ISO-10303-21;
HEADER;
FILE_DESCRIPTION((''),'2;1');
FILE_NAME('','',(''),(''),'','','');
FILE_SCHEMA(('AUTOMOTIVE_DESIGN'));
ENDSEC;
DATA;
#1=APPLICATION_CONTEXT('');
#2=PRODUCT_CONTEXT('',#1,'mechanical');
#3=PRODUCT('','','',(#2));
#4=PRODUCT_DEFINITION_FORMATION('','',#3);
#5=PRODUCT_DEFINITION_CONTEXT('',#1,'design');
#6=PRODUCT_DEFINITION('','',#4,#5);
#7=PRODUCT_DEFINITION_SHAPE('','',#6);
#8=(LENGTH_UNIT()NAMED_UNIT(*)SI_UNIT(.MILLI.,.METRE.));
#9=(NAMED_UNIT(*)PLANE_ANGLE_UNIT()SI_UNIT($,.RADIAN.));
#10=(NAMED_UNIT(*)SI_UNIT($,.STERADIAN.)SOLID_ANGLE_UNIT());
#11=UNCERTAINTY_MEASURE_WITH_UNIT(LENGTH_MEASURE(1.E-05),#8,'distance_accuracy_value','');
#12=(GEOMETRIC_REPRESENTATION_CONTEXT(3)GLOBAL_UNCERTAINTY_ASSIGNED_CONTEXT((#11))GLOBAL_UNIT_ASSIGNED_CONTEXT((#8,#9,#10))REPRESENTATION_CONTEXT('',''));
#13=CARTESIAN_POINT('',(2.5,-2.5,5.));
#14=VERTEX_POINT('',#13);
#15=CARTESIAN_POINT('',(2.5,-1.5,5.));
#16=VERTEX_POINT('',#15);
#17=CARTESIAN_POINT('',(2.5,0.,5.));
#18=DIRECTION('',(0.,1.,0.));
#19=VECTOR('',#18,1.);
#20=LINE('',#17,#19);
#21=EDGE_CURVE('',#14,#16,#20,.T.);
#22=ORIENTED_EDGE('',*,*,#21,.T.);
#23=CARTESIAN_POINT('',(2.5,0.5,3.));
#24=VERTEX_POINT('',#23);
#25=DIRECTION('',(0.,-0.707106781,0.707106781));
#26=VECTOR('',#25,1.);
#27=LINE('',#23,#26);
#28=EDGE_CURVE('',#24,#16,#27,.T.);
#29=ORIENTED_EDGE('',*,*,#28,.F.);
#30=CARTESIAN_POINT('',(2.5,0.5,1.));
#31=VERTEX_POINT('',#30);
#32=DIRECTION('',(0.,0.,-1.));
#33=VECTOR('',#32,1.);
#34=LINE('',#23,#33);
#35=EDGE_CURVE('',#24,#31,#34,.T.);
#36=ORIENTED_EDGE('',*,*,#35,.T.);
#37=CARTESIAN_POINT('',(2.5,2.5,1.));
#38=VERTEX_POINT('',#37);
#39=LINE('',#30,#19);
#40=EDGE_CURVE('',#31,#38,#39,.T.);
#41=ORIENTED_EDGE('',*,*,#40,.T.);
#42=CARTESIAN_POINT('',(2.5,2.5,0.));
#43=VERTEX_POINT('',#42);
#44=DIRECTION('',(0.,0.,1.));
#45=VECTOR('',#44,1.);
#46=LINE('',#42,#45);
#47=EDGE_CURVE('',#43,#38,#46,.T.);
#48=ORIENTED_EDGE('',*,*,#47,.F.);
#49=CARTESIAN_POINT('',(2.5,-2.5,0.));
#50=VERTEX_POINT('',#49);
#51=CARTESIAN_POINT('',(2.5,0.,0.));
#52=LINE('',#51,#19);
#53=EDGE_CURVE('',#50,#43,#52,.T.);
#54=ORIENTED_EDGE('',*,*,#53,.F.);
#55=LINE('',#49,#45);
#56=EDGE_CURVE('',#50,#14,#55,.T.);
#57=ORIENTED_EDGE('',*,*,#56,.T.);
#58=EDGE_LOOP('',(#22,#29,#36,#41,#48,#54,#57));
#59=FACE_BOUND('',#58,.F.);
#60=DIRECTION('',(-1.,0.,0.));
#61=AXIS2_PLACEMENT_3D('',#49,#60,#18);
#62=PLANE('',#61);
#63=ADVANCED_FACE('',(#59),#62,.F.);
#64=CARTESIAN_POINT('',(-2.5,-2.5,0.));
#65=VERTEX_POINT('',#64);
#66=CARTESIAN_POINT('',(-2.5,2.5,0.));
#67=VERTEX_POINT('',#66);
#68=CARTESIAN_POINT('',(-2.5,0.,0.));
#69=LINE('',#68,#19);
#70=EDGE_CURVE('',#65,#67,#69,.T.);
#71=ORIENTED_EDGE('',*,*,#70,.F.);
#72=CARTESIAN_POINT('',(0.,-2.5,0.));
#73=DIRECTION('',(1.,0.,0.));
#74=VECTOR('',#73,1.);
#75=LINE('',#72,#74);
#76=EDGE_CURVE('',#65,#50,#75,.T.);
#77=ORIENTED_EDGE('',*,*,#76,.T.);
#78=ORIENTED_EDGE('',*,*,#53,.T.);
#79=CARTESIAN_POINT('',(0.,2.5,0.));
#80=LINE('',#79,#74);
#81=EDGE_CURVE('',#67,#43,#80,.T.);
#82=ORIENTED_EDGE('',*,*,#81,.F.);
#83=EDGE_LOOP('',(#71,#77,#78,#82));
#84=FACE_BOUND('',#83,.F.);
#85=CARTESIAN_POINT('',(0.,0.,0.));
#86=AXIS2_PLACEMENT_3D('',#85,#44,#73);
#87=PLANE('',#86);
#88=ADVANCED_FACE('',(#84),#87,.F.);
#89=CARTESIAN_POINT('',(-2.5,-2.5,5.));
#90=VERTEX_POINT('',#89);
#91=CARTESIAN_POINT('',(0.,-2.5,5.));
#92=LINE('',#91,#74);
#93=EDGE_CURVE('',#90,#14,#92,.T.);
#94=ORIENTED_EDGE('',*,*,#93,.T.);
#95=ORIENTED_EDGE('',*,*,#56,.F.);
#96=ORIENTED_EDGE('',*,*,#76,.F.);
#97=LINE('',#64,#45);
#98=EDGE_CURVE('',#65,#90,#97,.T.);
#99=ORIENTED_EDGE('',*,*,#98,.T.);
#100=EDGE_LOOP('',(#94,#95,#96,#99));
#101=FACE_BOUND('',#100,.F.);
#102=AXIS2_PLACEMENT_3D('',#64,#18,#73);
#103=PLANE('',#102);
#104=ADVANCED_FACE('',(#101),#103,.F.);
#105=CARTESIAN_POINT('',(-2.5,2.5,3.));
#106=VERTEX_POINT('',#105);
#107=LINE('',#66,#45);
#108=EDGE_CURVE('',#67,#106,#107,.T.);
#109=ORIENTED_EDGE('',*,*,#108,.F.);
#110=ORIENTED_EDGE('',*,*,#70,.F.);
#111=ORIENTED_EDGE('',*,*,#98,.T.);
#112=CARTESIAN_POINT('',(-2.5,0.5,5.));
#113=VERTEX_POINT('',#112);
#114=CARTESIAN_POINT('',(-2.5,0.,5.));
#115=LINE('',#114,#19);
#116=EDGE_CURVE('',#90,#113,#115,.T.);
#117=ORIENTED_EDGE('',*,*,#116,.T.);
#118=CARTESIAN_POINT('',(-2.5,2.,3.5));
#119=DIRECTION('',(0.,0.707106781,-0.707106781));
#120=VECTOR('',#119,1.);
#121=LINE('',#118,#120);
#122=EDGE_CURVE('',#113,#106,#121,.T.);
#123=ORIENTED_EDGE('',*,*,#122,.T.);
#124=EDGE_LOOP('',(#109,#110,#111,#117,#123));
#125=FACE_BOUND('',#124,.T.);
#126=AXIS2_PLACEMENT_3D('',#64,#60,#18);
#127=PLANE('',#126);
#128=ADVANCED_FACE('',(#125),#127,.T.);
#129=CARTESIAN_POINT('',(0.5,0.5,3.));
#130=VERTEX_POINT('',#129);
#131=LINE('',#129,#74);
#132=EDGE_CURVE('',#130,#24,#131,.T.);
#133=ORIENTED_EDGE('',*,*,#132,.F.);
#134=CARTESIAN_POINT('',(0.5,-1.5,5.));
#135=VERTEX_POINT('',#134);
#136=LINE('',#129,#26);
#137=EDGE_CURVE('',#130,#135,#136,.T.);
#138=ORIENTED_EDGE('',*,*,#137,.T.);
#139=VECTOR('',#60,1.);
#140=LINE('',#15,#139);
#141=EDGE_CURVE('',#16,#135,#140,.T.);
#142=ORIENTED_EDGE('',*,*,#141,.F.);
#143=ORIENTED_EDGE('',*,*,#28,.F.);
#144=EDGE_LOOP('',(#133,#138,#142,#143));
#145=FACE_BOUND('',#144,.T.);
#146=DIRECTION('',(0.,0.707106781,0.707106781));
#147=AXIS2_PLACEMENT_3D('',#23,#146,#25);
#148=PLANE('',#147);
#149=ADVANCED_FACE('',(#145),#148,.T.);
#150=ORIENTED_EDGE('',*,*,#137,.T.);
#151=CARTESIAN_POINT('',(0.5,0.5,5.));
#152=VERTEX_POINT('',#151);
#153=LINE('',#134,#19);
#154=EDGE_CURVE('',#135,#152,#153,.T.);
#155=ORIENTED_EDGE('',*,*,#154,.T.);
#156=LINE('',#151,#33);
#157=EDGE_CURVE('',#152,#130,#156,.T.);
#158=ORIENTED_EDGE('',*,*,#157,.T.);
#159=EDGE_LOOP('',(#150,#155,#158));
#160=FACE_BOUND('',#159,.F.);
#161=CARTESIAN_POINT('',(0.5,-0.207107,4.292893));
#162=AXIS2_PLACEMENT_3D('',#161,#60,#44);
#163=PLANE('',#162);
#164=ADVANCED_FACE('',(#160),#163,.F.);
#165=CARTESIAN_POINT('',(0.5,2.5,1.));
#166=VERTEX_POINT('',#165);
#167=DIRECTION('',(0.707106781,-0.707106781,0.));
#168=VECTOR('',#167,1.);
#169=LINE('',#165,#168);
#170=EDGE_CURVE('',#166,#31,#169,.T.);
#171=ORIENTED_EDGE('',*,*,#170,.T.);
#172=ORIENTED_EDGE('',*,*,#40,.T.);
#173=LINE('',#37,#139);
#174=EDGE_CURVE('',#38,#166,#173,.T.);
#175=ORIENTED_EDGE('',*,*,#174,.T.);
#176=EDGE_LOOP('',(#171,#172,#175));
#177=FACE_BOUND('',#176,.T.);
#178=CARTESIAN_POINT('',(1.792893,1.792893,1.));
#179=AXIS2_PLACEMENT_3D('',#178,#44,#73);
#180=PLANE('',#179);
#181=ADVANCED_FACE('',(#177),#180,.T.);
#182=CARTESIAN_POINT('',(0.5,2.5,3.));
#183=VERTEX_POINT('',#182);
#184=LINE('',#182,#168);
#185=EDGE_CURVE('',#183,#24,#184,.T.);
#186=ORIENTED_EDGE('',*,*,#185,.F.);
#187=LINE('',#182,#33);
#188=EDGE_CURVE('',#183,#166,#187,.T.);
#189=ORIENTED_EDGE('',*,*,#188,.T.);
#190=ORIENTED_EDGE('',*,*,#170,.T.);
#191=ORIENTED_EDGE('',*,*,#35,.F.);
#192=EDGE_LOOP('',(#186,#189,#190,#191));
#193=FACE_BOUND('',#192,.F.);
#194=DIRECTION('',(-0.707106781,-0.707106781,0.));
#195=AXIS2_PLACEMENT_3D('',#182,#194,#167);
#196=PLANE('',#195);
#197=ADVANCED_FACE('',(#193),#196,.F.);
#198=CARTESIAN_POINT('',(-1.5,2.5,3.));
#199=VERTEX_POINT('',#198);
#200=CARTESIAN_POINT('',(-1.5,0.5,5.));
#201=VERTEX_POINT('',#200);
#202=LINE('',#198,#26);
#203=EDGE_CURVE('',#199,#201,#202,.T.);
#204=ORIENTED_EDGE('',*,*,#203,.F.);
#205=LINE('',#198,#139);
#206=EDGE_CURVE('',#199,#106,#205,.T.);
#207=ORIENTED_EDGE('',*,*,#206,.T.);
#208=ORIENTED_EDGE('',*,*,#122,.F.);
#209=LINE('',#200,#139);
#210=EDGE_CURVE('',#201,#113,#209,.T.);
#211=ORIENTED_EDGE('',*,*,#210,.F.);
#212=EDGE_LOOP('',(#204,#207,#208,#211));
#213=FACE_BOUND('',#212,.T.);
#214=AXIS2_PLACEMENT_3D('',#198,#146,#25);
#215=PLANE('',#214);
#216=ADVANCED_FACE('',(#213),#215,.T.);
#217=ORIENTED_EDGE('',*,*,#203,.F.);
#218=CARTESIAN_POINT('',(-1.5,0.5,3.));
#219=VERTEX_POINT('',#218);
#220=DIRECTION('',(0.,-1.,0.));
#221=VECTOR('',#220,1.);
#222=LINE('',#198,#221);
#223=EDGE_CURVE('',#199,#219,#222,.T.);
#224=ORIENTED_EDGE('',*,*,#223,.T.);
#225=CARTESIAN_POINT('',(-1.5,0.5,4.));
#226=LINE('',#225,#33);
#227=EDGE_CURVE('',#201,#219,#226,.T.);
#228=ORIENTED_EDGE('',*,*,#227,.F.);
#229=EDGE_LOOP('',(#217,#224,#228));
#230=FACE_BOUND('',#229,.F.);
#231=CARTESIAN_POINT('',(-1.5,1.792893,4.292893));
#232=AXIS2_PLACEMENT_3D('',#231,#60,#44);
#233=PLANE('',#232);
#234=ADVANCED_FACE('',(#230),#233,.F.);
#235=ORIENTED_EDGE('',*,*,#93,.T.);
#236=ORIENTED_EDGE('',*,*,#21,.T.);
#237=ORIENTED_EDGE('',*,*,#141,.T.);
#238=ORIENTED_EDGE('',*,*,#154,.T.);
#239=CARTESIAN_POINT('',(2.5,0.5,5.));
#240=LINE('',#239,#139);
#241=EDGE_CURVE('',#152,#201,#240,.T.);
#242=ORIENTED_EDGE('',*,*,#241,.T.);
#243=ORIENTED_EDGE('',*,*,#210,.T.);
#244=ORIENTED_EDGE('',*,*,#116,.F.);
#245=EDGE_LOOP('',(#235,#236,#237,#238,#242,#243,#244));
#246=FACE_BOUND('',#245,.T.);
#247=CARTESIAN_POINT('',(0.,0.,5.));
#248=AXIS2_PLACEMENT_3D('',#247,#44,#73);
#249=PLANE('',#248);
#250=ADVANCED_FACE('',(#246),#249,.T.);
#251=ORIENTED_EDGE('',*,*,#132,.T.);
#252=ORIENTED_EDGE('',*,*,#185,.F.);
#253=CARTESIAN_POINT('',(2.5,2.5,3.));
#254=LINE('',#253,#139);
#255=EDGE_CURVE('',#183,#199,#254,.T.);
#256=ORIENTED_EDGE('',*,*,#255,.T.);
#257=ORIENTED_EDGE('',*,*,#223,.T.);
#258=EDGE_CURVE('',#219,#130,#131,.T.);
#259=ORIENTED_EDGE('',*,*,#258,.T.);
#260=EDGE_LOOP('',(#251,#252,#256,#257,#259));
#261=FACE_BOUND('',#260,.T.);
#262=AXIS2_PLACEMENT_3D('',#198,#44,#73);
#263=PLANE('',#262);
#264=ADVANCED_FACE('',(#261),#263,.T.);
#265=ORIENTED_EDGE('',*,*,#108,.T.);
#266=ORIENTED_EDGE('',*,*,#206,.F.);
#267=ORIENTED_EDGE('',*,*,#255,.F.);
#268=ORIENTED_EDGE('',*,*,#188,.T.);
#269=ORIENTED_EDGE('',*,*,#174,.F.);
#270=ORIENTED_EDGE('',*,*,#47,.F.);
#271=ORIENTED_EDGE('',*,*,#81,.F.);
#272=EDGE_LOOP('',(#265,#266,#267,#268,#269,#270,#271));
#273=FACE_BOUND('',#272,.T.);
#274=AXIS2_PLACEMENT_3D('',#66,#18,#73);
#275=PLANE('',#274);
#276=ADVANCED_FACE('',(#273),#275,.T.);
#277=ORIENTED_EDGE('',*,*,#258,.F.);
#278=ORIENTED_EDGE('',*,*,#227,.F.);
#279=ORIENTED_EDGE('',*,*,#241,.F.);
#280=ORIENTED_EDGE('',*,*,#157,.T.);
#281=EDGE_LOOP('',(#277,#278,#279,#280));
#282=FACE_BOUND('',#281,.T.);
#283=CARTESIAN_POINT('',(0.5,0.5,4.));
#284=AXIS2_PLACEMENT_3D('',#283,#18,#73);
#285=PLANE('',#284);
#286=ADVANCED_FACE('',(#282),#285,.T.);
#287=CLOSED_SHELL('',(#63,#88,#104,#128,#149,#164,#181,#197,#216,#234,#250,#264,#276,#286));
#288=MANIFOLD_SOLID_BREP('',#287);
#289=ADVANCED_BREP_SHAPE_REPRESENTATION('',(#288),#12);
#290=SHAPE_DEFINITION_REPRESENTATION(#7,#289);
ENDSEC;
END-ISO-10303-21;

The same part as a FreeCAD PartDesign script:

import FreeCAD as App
import Part
import Sketcher

doc = App.newDocument("Part")
body = doc.addObject("PartDesign::Body", "Body")

sketch1 = body.newObject("Sketcher::SketchObject", "Sketch")
sketch1.AttachmentSupport = (doc.getObject("XY_Plane"), [""])
sketch1.MapMode = "FlatFace"
sketch1.addGeometry([
    Part.LineSegment(App.Vector(-2.5, 2.5, 0), App.Vector(-2.5, -2.5, 0)),
    Part.LineSegment(App.Vector(-2.5, -2.5, 0), App.Vector(2.5, -2.5, 0)),
    Part.LineSegment(App.Vector(2.5, -2.5, 0), App.Vector(2.5, 2.5, 0)),
    Part.LineSegment(App.Vector(2.5, 2.5, 0), App.Vector(-2.5, 2.5, 0)),
], False)
sketch1.addConstraint([
    Sketcher.Constraint("Coincident", 0, 2, 1, 1),
    Sketcher.Constraint("Coincident", 1, 2, 2, 1),
    Sketcher.Constraint("Coincident", 2, 2, 3, 1),
    Sketcher.Constraint("Coincident", 3, 2, 0, 1),
    Sketcher.Constraint("Vertical", 0),
    Sketcher.Constraint("Horizontal", 1),
    Sketcher.Constraint("Vertical", 2),
    Sketcher.Constraint("Horizontal", 3),
    Sketcher.Constraint("Symmetric", 0, 2, 2, 2, -1, 1),
    Sketcher.Constraint("Equal", 3, 0),
    Sketcher.Constraint("DistanceX", 1, 1, 1, 2, 5.0),
])
pad1 = body.newObject("PartDesign::Pad", "Pad")
pad1.Profile = sketch1
pad1.Length = 5

sketch2 = body.newObject("Sketcher::SketchObject", "Sketch001")
sketch2.AttachmentSupport = (doc.getObject("YZ_Plane"), [""])
sketch2.MapMode = "FlatFace"
sketch2.AttachmentOffset = App.Placement(App.Vector(0, 0, 2.5), App.Rotation())
sketch2.addGeometry([
    Part.LineSegment(App.Vector(0.5, 5, 0), App.Vector(2.5, 3, 0)),
    Part.LineSegment(App.Vector(2.5, 3, 0), App.Vector(2.5, 5, 0)),
    Part.LineSegment(App.Vector(2.5, 5, 0), App.Vector(0.5, 5, 0)),
], False)
sketch2.addConstraint([
    Sketcher.Constraint("Coincident", 0, 2, 1, 1),
    Sketcher.Constraint("Coincident", 1, 2, 2, 1),
    Sketcher.Constraint("Coincident", 2, 2, 0, 1),
    Sketcher.Constraint("Vertical", 1),
    Sketcher.Constraint("Horizontal", 2),
    Sketcher.Constraint("Equal", 2, 1),
    Sketcher.Constraint("DistanceX", 2, 2, 2, 1, 2.0),
    Sketcher.Constraint("DistanceY", -1, 1, 0, 2, 3.0),
    Sketcher.Constraint("DistanceX", -1, 1, 0, 2, 2.5),
])
pocket1 = body.newObject("PartDesign::Pocket", "Pocket")
pocket1.Profile = sketch2
pocket1.Length = 4

sketch3 = body.newObject("Sketcher::SketchObject", "Sketch002")
sketch3.AttachmentSupport = (doc.getObject("XZ_Plane"), [""])
sketch3.MapMode = "FlatFace"
sketch3.AttachmentOffset = App.Placement(App.Vector(0, 0, -2.5), App.Rotation())
sketch3.addGeometry([
    Part.LineSegment(App.Vector(-1.5, 3, 0), App.Vector(-1.5, 5, 0)),
    Part.LineSegment(App.Vector(-1.5, 5, 0), App.Vector(2.5, 5, 0)),
    Part.LineSegment(App.Vector(2.5, 5, 0), App.Vector(2.5, 3, 0)),
    Part.LineSegment(App.Vector(2.5, 3, 0), App.Vector(-1.5, 3, 0)),
], False)
sketch3.addConstraint([
    Sketcher.Constraint("Coincident", 0, 2, 1, 1),
    Sketcher.Constraint("Coincident", 1, 2, 2, 1),
    Sketcher.Constraint("Coincident", 2, 2, 3, 1),
    Sketcher.Constraint("Coincident", 3, 2, 0, 1),
    Sketcher.Constraint("Vertical", 0),
    Sketcher.Constraint("Horizontal", 1),
    Sketcher.Constraint("Vertical", 2),
    Sketcher.Constraint("Horizontal", 3),
    Sketcher.Constraint("DistanceX", 1, 1, 1, 2, 4.0),
    Sketcher.Constraint("DistanceY", 0, 1, 0, 2, 2.0),
    Sketcher.Constraint("DistanceY", -1, 1, 0, 2, 5.0),
    Sketcher.Constraint("DistanceX", 0, 2, -1, 1, 1.5),
])
pocket2 = body.newObject("PartDesign::Pocket", "Pocket001")
pocket2.Profile = sketch3
pocket2.Length = 2
pocket2.Reversed = True

sketch4 = body.newObject("Sketcher::SketchObject", "Sketch003")
sketch4.AttachmentSupport = (doc.getObject("YZ_Plane"), [""])
sketch4.MapMode = "FlatFace"
sketch4.AttachmentOffset = App.Placement(App.Vector(0, 0, 2.5), App.Rotation())
sketch4.addGeometry([
    Part.LineSegment(App.Vector(-1.5, 5, 0), App.Vector(0.5, 3, 0)),
    Part.LineSegment(App.Vector(0.5, 3, 0), App.Vector(0.5, 5, 0)),
    Part.LineSegment(App.Vector(0.5, 5, 0), App.Vector(-1.5, 5, 0)),
], False)
sketch4.addConstraint([
    Sketcher.Constraint("Coincident", 0, 2, 1, 1),
    Sketcher.Constraint("Coincident", 1, 2, 2, 1),
    Sketcher.Constraint("Coincident", 2, 2, 0, 1),
    Sketcher.Constraint("Vertical", 1),
    Sketcher.Constraint("Horizontal", 2),
    Sketcher.Constraint("Equal", 2, 1),
    Sketcher.Constraint("DistanceX", 2, 2, 2, 1, 2.0),
    Sketcher.Constraint("DistanceY", -1, 1, 0, 2, 3.0),
    Sketcher.Constraint("DistanceX", -1, 1, 0, 2, 0.5),
])
pocket3 = body.newObject("PartDesign::Pocket", "Pocket002")
pocket3.Profile = sketch4
pocket3.Length = 2

sketch5 = body.newObject("Sketcher::SketchObject", "Sketch004")
sketch5.AttachmentSupport = (doc.getObject("XY_Plane"), [""])
sketch5.MapMode = "FlatFace"
sketch5.AttachmentOffset = App.Placement(App.Vector(0, 0, 3), App.Rotation())
sketch5.addGeometry([
    Part.LineSegment(App.Vector(0.5, 2.5, 0), App.Vector(2.5, 0.5, 0)),
    Part.LineSegment(App.Vector(2.5, 0.5, 0), App.Vector(2.5, 2.5, 0)),
    Part.LineSegment(App.Vector(2.5, 2.5, 0), App.Vector(0.5, 2.5, 0)),
], False)
sketch5.addConstraint([
    Sketcher.Constraint("Coincident", 0, 2, 1, 1),
    Sketcher.Constraint("Coincident", 1, 2, 2, 1),
    Sketcher.Constraint("Coincident", 2, 2, 0, 1),
    Sketcher.Constraint("Vertical", 1),
    Sketcher.Constraint("Horizontal", 2),
    Sketcher.Constraint("Equal", 2, 1),
    Sketcher.Constraint("DistanceX", 2, 2, 2, 1, 2.0),
    Sketcher.Constraint("DistanceX", -1, 1, 0, 2, 2.5),
    Sketcher.Constraint("DistanceY", -1, 1, 0, 2, 0.5),
])
pocket4 = body.newObject("PartDesign::Pocket", "Pocket003")
pocket4.Profile = sketch5
pocket4.Length = 2

sketch6 = body.newObject("Sketcher::SketchObject", "Sketch005")
sketch6.AttachmentSupport = (doc.getObject("YZ_Plane"), [""])
sketch6.MapMode = "FlatFace"
sketch6.AttachmentOffset = App.Placement(App.Vector(0, 0, -1.5), App.Rotation())
sketch6.addGeometry([
    Part.LineSegment(App.Vector(0.5, 5, 0), App.Vector(2.5, 3, 0)),
    Part.LineSegment(App.Vector(2.5, 3, 0), App.Vector(2.5, 5, 0)),
    Part.LineSegment(App.Vector(2.5, 5, 0), App.Vector(0.5, 5, 0)),
], False)
sketch6.addConstraint([
    Sketcher.Constraint("Coincident", 0, 2, 1, 1),
    Sketcher.Constraint("Coincident", 1, 2, 2, 1),
    Sketcher.Constraint("Coincident", 2, 2, 0, 1),
    Sketcher.Constraint("Vertical", 1),
    Sketcher.Constraint("Horizontal", 2),
    Sketcher.Constraint("Equal", 2, 1),
    Sketcher.Constraint("DistanceX", 2, 2, 2, 1, 2.0),
    Sketcher.Constraint("DistanceY", -1, 1, 0, 2, 3.0),
    Sketcher.Constraint("DistanceX", -1, 1, 0, 2, 2.5),
])
pocket5 = body.newObject("PartDesign::Pocket", "Pocket004")
pocket5.Profile = sketch6
pocket5.Type = "ThroughAll"

doc.recompute()
